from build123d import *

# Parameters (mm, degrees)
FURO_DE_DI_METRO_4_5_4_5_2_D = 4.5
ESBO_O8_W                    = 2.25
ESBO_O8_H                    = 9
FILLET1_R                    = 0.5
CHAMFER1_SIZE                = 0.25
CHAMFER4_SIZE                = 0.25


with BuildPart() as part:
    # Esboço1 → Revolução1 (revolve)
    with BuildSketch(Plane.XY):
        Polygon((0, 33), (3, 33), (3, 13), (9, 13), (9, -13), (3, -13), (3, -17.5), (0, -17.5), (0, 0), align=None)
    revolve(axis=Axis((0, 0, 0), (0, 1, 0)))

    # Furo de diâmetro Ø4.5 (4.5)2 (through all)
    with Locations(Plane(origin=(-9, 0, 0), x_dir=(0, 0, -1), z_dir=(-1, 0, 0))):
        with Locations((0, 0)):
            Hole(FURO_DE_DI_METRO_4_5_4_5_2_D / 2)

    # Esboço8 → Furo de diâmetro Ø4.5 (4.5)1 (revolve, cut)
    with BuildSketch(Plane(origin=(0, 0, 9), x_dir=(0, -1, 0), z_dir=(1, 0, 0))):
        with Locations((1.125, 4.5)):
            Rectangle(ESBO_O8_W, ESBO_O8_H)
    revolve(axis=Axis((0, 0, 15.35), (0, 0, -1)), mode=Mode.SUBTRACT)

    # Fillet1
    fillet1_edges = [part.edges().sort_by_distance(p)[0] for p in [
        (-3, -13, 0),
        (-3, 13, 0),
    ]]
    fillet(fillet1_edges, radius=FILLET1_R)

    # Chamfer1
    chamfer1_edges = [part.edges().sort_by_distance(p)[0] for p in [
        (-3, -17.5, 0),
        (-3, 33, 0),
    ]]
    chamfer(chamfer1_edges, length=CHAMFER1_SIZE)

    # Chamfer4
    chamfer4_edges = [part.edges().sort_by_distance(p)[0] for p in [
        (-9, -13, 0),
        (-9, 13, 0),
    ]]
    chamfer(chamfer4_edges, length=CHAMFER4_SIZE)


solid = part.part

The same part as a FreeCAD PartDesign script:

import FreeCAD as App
import Part
import Sketcher
from FreeCAD import Vector


def edges_at(feature, points):
    """Names of the edges that pass closest to the given points."""
    edges = feature.Shape.Edges
    near = lambda p: min(range(len(edges)), key=lambda i: edges[i].distToShape(Part.Vertex(*p))[0])
    return sorted({f"Edge{near(p) + 1}" for p in points})

doc = App.newDocument("Part")
body = doc.addObject("PartDesign::Body", "Body")

# Sketch on XY plane
sketch1 = body.newObject("Sketcher::SketchObject", "Sketch")
sketch1.AttachmentSupport = (doc.getObject("XY_Plane"), [""])
sketch1.MapMode = "FlatFace"
sketch1.addGeometry(Part.LineSegment(Vector(3, 33, 0), Vector(0, 33, 0)), False)
sketch1.addGeometry(Part.LineSegment(Vector(0, 33, 0), Vector(0, -17.5, 0)), False)
sketch1.addGeometry(Part.LineSegment(Vector(0, -17.5, 0), Vector(3, -17.5, 0)), False)
sketch1.addGeometry(Part.LineSegment(Vector(3, -17.5, 0), Vector(3, -13, 0)), False)
sketch1.addGeometry(Part.LineSegment(Vector(3, -13, 0), Vector(9, -13, 0)), False)
sketch1.addGeometry(Part.LineSegment(Vector(9, -13, 0), Vector(9, 13, 0)), False)
sketch1.addGeometry(Part.LineSegment(Vector(9, 13, 0), Vector(3, 13, 0)), False)
sketch1.addGeometry(Part.LineSegment(Vector(3, 13, 0), Vector(3, 33, 0)), False)
sketch1.addConstraint(Sketcher.Constraint("Coincident", 0, 2, 1, 1))
sketch1.addConstraint(Sketcher.Constraint("Coincident", 1, 2, 2, 1))
sketch1.addConstraint(Sketcher.Constraint("Coincident", 2, 2, 3, 1))
sketch1.addConstraint(Sketcher.Constraint("Coincident", 3, 2, 4, 1))
sketch1.addConstraint(Sketcher.Constraint("Coincident", 4, 2, 5, 1))
sketch1.addConstraint(Sketcher.Constraint("Coincident", 5, 2, 6, 1))
sketch1.addConstraint(Sketcher.Constraint("Coincident", 6, 2, 7, 1))
sketch1.addConstraint(Sketcher.Constraint("Coincident", 7, 2, 0, 1))
sketch1.addConstraint(Sketcher.Constraint("Horizontal", 0))
sketch1.addConstraint(Sketcher.Constraint("Vertical", 1))
sketch1.addConstraint(Sketcher.Constraint("Horizontal", 2))
sketch1.addConstraint(Sketcher.Constraint("Vertical", 3))
sketch1.addConstraint(Sketcher.Constraint("Horizontal", 4))
sketch1.addConstraint(Sketcher.Constraint("Vertical", 5))
sketch1.addConstraint(Sketcher.Constraint("Horizontal", 6))
sketch1.addConstraint(Sketcher.Constraint("Vertical", 7))
sketch1.addConstraint(Sketcher.Constraint("Symmetric", 3, 2, 6, 2, -1))
sketch1.addConstraint(Sketcher.Constraint("PointOnObject", 0, 2, -2))
sketch1.addConstraint(Sketcher.Constraint("DistanceX", 0, 2, 0, 1, 3.0))
sketch1.addConstraint(Sketcher.Constraint("DistanceX", 4, 1, 4, 2, 6.0))
sketch1.addConstraint(Sketcher.Constraint("DistanceY", 5, 1, 5, 2, 26.0))
sketch1.addConstraint(Sketcher.Constraint("DistanceY", 7, 1, 7, 2, 20.0))
sketch1.addConstraint(Sketcher.Constraint("DistanceY", 1, 2, 1, 1, 50.5))
revolution = body.newObject("PartDesign::Revolution", "Revolution")
revolution.Profile = sketch1
revolution.ReferenceAxis = (sketch1, ["V_Axis"])
revolution.Angle = 360

# Sketch on YZ plane
sketch2 = body.newObject("Sketcher::SketchObject", "Sketch001")
sketch2.AttachmentSupport = (doc.getObject("YZ_Plane"), [""])
sketch2.MapMode = "FlatFace"
sketch2.AttachmentOffset = App.Placement(Vector(0, 0, -9), App.Rotation())
sketch2.addGeometry(Part.Circle(Vector(0, 0, 0), Vector(0, 0, 1), 2.2), False)
sketch2.addConstraint(Sketcher.Constraint("Coincident", 0, 3, -1, 1))
sketch2.addConstraint(Sketcher.Constraint("Diameter", 0, 4.5))
doc.recompute()
hole = body.newObject("PartDesign::Hole", "Hole")
hole.Profile = sketch2
hole.ThreadType = "None"
hole.Diameter = 4.5
hole.DepthType = "ThroughAll"
hole.Reversed = True

# Sketch on YZ plane
sketch3 = body.newObject("Sketcher::SketchObject", "Sketch002")
sketch3.AttachmentSupport = (doc.getObject("YZ_Plane"), [""])
sketch3.MapMode = "FlatFace"
sketch3.addGeometry(Part.LineSegment(Vector(0, 0, 0), Vector(0, 9, 0)), False)
sketch3.addGeometry(Part.LineSegment(Vector(0, 9, 0), Vector(-2.2, 9, 0)), False)
sketch3.addGeometry(Part.LineSegment(Vector(-2.2, 9, 0), Vector(-2.2, 0, 0)), False)
sketch3.addGeometry(Part.LineSegment(Vector(-2.2, 0, 0), Vector(0, 0, 0)), False)
sketch3.addConstraint(Sketcher.Constraint("Coincident", 0, 2, 1, 1))
sketch3.addConstraint(Sketcher.Constraint("Coincident", 1, 2, 2, 1))
sketch3.addConstraint(Sketcher.Constraint("Coincident", 2, 2, 3, 1))
sketch3.addConstraint(Sketcher.Constraint("Coincident", 3, 2, 0, 1))
sketch3.addConstraint(Sketcher.Constraint("Vertical", 0))
sketch3.addConstraint(Sketcher.Constraint("Horizontal", 1))
sketch3.addConstraint(Sketcher.Constraint("Vertical", 2))
sketch3.addConstraint(Sketcher.Constraint("Horizontal", 3))
sketch3.addConstraint(Sketcher.Constraint("Coincident", 3, 2, -1, 1))
sketch3.addConstraint(Sketcher.Constraint("DistanceY", 0, 1, 0, 2, 9.0))
sketch3.addConstraint(Sketcher.Constraint("DistanceX", 1, 2, 1, 1, 2.25))
groove = body.newObject("PartDesign::Groove", "Groove")
groove.Profile = sketch3
groove.ReferenceAxis = (sketch3, ["V_Axis"])
groove.Angle = 360
doc.recompute()

fillet = body.newObject("PartDesign::Fillet", "Fillet")
fillet.Base = (groove, edges_at(groove, [(-3, -13, 0), (-3, 13, 0)]))
fillet.Radius = 0.5
doc.recompute()

chamfer = body.newObject("PartDesign::Chamfer", "Chamfer")
chamfer.Base = (fillet, edges_at(fillet, [(-3, -17.5, 0), (-3, 33, 0)]))
chamfer.Size = 0.25
doc.recompute()

chamfer2 = body.newObject("PartDesign::Chamfer", "Chamfer001")
chamfer2.Base = (chamfer, edges_at(chamfer, [(-9, -13, 0), (-9, 13, 0)]))
chamfer2.Size = 0.25

doc.recompute()
